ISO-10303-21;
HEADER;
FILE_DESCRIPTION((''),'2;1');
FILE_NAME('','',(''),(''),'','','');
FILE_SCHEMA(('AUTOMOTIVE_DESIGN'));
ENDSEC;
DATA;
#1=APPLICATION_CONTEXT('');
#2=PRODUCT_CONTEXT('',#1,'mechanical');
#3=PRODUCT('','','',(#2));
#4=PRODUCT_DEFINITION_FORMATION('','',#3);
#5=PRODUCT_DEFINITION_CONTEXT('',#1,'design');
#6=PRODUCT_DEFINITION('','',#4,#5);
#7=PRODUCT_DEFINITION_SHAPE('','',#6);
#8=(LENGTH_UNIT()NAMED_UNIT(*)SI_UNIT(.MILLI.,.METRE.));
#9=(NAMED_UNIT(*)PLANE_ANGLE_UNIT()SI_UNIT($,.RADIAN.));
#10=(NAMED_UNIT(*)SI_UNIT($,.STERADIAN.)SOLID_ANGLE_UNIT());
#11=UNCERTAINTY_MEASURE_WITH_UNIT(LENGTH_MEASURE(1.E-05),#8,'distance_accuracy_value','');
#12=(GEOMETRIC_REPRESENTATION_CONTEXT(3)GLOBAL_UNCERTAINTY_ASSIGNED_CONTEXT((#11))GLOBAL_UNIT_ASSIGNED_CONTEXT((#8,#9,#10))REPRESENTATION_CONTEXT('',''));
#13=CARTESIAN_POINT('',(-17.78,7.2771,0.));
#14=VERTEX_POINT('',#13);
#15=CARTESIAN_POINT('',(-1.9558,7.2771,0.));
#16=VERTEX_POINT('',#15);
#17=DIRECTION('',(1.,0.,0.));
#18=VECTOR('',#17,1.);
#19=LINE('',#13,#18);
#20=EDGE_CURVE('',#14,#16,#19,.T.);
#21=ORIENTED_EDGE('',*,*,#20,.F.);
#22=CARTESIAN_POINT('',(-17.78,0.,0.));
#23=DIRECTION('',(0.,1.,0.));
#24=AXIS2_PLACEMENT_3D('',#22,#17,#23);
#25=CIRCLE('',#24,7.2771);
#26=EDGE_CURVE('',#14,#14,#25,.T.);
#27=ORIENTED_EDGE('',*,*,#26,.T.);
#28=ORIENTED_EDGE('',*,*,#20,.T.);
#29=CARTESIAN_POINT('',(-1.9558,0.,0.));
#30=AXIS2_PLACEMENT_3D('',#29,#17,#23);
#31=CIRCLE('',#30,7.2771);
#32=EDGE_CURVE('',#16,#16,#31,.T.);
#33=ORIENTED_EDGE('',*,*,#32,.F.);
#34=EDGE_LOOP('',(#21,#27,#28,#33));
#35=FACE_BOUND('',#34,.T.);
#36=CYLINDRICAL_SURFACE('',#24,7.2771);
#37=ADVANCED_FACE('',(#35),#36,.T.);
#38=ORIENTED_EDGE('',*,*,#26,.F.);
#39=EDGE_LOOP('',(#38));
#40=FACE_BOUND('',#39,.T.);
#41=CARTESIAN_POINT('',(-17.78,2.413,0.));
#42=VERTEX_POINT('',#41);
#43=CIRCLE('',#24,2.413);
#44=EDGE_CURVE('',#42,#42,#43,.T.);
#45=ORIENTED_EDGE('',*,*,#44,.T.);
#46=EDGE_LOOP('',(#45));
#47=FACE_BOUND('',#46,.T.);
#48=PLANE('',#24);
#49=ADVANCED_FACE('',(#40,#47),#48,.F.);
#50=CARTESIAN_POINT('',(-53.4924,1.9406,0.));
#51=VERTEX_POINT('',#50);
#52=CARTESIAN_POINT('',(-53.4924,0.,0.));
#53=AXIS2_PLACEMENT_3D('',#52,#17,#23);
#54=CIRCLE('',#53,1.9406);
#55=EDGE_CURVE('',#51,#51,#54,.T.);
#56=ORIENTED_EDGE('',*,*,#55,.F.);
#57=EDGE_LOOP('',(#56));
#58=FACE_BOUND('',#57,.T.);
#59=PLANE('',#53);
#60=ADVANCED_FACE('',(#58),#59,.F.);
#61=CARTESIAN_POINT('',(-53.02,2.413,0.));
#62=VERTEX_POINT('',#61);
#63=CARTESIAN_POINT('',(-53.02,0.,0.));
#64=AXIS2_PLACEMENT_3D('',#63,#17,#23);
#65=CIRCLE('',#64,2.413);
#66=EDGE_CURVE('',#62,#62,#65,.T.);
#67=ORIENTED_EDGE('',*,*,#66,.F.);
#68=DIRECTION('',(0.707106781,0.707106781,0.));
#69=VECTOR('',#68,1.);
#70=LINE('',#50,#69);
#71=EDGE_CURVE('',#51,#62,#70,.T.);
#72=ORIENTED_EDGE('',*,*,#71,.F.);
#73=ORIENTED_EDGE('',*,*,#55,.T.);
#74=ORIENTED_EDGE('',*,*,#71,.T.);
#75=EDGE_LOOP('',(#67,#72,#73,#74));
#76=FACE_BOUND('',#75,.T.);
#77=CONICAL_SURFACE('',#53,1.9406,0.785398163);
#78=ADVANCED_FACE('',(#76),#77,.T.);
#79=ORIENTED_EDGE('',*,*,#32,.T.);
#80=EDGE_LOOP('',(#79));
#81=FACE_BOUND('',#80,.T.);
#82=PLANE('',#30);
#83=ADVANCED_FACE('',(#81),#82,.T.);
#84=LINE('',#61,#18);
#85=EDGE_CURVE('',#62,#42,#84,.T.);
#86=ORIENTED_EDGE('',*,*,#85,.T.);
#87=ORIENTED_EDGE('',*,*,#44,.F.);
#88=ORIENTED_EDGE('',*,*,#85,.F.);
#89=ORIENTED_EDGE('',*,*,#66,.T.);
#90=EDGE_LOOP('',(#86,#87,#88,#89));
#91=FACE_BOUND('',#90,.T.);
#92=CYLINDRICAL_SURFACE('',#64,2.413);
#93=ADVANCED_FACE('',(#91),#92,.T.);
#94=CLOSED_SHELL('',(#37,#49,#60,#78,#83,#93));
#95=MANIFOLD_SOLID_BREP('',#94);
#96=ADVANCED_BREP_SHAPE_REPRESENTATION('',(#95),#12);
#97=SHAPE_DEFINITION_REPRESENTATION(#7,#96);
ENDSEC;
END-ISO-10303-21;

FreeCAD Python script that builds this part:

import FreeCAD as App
import Part
import Sketcher
from FreeCAD import Vector
Q = App.Units.Quantity

doc = App.newDocument("Part")
body = doc.addObject("PartDesign::Body", "Body")

sketch1 = body.newObject("Sketcher::SketchObject", "Sketch")
sketch1.AttachmentSupport = (doc.getObject("XY_Plane"), [""])
sketch1.MapMode = "FlatFace"
sketch1.addGeometry(Part.LineSegment(Vector(-53.4924, 0, 0), Vector(-9.525, 0, 0)), False)
sketch1.addGeometry(Part.LineSegment(Vector(-9.525, 0, 0), Vector(-9.525, 2.413, 0)), False)
sketch1.addGeometry(Part.LineSegment(Vector(-9.525, 2.413, 0), Vector(-53.02, 2.413, 0)), False)
sketch1.addGeometry(Part.LineSegment(Vector(-53.02, 2.413, 0), Vector(-53.4924, 1.9406, 0)), False)
sketch1.addGeometry(Part.LineSegment(Vector(-53.4924, 1.9406, 0), Vector(-53.4924, 0, 0)), False)
sketch1.addConstraint(Sketcher.Constraint("Coincident", 0, 2, 1, 1))
sketch1.addConstraint(Sketcher.Constraint("Coincident", 1, 2, 2, 1))
sketch1.addConstraint(Sketcher.Constraint("Coincident", 2, 2, 3, 1))
sketch1.addConstraint(Sketcher.Constraint("Coincident", 3, 2, 4, 1))
sketch1.addConstraint(Sketcher.Constraint("Coincident", 4, 2, 0, 1))
sketch1.addConstraint(Sketcher.Constraint("Horizontal", 0))
sketch1.addConstraint(Sketcher.Constraint("Vertical", 1))
sketch1.addConstraint(Sketcher.Constraint("Horizontal", 2))
sketch1.addConstraint(Sketcher.Constraint("Vertical", 4))
sketch1.addConstraint(Sketcher.Constraint("PointOnObject", 0, 2, -1))
sketch1.addConstraint(Sketcher.Constraint("Angle", 3, Q("-135 deg")))
sketch1.addConstraint(Sketcher.Constraint("DistanceX", 0, 1, 0, 2, Q("1.731 in")))
sketch1.addConstraint(Sketcher.Constraint("DistanceY", 1, 1, 1, 2, Q("0.095 in")))
sketch1.addConstraint(Sketcher.Constraint("DistanceX", 2, 2, 2, 1, Q("1.7124 in")))
sketch1.addConstraint(Sketcher.Constraint("DistanceX", 0, 2, -1, 1, Q("0.375 in")))
revolution = body.newObject("PartDesign::Revolution", "Revolution")
revolution.Profile = sketch1
revolution.ReferenceAxis = (sketch1, ["H_Axis"])
revolution.Angle = 360

sketch2 = body.newObject("Sketcher::SketchObject", "Sketch001")
sketch2.AttachmentSupport = (doc.getObject("XY_Plane"), [""])
sketch2.MapMode = "FlatFace"
sketch2.addGeometry(Part.LineSegment(Vector(-17.78, 0, 0), Vector(-1.9558, 0, 0)), False)
sketch2.addGeometry(Part.LineSegment(Vector(-1.9558, 0, 0), Vector(-1.9558, 7.2771, 0)), False)
sketch2.addGeometry(Part.LineSegment(Vector(-1.9558, 7.2771, 0), Vector(-17.78, 7.2771, 0)), False)
sketch2.addGeometry(Part.LineSegment(Vector(-17.78, 7.2771, 0), Vector(-17.78, 0, 0)), False)
sketch2.addConstraint(Sketcher.Constraint("Coincident", 0, 2, 1, 1))
sketch2.addConstraint(Sketcher.Constraint("Coincident", 1, 2, 2, 1))
sketch2.addConstraint(Sketcher.Constraint("Coincident", 2, 2, 3, 1))
sketch2.addConstraint(Sketcher.Constraint("Coincident", 3, 2, 0, 1))
sketch2.addConstraint(Sketcher.Constraint("Horizontal", 0))
sketch2.addConstraint(Sketcher.Constraint("Vertical", 1))
sketch2.addConstraint(Sketcher.Constraint("Horizontal", 2))
sketch2.addConstraint(Sketcher.Constraint("Vertical", 3))
sketch2.addConstraint(Sketcher.Constraint("PointOnObject", 0, 2, -1))
sketch2.addConstraint(Sketcher.Constraint("DistanceX", 2, 2, -1, 1, Q("0.7 in")))
sketch2.addConstraint(Sketcher.Constraint("DistanceX", 0, 1, 0, 2, Q("0.623 in")))
sketch2.addConstraint(Sketcher.Constraint("DistanceY", 1, 1, 1, 2, Q("0.2865 in")))
revolution2 = body.newObject("PartDesign::Revolution", "Revolution001")
revolution2.Profile = sketch2
revolution2.ReferenceAxis = (sketch2, ["H_Axis"])
revolution2.Angle = 360

doc.recompute()
